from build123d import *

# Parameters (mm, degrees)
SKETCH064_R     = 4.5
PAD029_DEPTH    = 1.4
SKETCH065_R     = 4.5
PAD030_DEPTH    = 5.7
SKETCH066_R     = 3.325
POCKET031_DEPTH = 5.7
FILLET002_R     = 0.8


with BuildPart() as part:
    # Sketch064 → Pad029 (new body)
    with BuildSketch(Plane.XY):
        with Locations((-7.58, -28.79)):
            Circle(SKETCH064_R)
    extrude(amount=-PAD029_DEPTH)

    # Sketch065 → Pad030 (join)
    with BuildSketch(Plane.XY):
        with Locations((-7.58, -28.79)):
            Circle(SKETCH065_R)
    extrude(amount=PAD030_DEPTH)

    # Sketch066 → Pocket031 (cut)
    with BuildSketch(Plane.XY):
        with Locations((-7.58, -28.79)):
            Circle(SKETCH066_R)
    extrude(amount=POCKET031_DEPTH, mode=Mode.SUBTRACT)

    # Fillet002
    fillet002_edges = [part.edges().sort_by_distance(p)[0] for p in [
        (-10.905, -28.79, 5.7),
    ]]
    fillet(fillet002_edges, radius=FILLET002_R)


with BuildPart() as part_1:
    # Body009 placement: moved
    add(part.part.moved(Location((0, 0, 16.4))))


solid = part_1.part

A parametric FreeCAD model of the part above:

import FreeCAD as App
import Part
import Sketcher
from FreeCAD import Vector
Q = App.Units.Quantity


def edges_at(feature, points):
    """Names of the edges that pass closest to the given points."""
    edges = feature.Shape.Edges
    near = lambda p: min(range(len(edges)), key=lambda i: edges[i].distToShape(Part.Vertex(*p))[0])
    return sorted({f"Edge{near(p) + 1}" for p in points})

doc = App.newDocument("Part")
body = doc.addObject("PartDesign::Body", "Body")

sketch1 = doc.addObject("Sketcher::SketchObject", "Sketch")
body.addObject(sketch1)
sketch1.AttachmentSupport = (doc.XY_Plane, [""])
sketch1.MapMode = "FlatFace"
sketch1.addGeometry(Part.Circle(Vector(-7.6, -28.8, 0), Vector(0, 0, 1), 4.5), False)
sketch1.addConstraint([
    Sketcher.Constraint("Diameter", 0, Q("9 mm")),
    Sketcher.Constraint("DistanceX", 0, 3, -1, 1, Q("7.58 mm")),
    Sketcher.Constraint("DistanceY", 0, 3, -1, 1, Q("28.79 mm")),
])
pad1 = doc.addObject("PartDesign::Pad", "Pad")
body.addObject(pad1)
pad1.Profile = sketch1
pad1.Length = 1.4
pad1.Reversed = True

sketch2 = doc.addObject("Sketcher::SketchObject", "Sketch001")
body.addObject(sketch2)
sketch2.AttachmentSupport = (doc.XY_Plane, [""])
sketch2.MapMode = "FlatFace"
sketch2.addGeometry(Part.Circle(Vector(-7.6, -28.8, 0), Vector(0, 0, 1), 4.5), False)
sketch2.addConstraint([
    Sketcher.Constraint("Diameter", 0, Q("9 mm")),
    Sketcher.Constraint("DistanceX", 0, 3, -1, 1, Q("7.58 mm")),
    Sketcher.Constraint("DistanceY", 0, 3, -1, 1, Q("28.79 mm")),
])
pad2 = doc.addObject("PartDesign::Pad", "Pad001")
body.addObject(pad2)
pad2.Profile = sketch2
pad2.Length = 5.7

sketch3 = doc.addObject("Sketcher::SketchObject", "Sketch002")
body.addObject(sketch3)
sketch3.AttachmentSupport = (doc.XY_Plane, [""])
sketch3.MapMode = "FlatFace"
sketch3.addGeometry(Part.Circle(Vector(-7.6, -28.8, 0), Vector(0, 0, 1), 3.3), False)
sketch3.addConstraint([
    Sketcher.Constraint("Diameter", 0, Q("6.65 mm")),
    Sketcher.Constraint("DistanceX", 0, 3, -1, 1, Q("7.58 mm")),
    Sketcher.Constraint("DistanceY", 0, 3, -1, 1, Q("28.79 mm")),
])
pocket1 = doc.addObject("PartDesign::Pocket", "Pocket")
body.addObject(pocket1)
pocket1.Profile = sketch3
pocket1.Length = 5.7
pocket1.Reversed = True
doc.recompute()

fillet = doc.addObject("PartDesign::Fillet", "Fillet")
body.addObject(fillet)
fillet.Base = (pocket1, edges_at(pocket1, [(-10.905, -28.79, 5.7)]))
fillet.Radius = 0.8
body2 = doc.addObject("PartDesign::Body", "Body001")
doc.recompute()

body.Placement = App.Placement(Vector(0, 0, 16.4), App.Rotation(Vector(0, 0, 1), 0))
boolean = doc.addObject("PartDesign::Boolean", "Boolean")
body2.addObject(boolean)
boolean.Type = "Fuse"
boolean.addObjects([body])

doc.recompute()
